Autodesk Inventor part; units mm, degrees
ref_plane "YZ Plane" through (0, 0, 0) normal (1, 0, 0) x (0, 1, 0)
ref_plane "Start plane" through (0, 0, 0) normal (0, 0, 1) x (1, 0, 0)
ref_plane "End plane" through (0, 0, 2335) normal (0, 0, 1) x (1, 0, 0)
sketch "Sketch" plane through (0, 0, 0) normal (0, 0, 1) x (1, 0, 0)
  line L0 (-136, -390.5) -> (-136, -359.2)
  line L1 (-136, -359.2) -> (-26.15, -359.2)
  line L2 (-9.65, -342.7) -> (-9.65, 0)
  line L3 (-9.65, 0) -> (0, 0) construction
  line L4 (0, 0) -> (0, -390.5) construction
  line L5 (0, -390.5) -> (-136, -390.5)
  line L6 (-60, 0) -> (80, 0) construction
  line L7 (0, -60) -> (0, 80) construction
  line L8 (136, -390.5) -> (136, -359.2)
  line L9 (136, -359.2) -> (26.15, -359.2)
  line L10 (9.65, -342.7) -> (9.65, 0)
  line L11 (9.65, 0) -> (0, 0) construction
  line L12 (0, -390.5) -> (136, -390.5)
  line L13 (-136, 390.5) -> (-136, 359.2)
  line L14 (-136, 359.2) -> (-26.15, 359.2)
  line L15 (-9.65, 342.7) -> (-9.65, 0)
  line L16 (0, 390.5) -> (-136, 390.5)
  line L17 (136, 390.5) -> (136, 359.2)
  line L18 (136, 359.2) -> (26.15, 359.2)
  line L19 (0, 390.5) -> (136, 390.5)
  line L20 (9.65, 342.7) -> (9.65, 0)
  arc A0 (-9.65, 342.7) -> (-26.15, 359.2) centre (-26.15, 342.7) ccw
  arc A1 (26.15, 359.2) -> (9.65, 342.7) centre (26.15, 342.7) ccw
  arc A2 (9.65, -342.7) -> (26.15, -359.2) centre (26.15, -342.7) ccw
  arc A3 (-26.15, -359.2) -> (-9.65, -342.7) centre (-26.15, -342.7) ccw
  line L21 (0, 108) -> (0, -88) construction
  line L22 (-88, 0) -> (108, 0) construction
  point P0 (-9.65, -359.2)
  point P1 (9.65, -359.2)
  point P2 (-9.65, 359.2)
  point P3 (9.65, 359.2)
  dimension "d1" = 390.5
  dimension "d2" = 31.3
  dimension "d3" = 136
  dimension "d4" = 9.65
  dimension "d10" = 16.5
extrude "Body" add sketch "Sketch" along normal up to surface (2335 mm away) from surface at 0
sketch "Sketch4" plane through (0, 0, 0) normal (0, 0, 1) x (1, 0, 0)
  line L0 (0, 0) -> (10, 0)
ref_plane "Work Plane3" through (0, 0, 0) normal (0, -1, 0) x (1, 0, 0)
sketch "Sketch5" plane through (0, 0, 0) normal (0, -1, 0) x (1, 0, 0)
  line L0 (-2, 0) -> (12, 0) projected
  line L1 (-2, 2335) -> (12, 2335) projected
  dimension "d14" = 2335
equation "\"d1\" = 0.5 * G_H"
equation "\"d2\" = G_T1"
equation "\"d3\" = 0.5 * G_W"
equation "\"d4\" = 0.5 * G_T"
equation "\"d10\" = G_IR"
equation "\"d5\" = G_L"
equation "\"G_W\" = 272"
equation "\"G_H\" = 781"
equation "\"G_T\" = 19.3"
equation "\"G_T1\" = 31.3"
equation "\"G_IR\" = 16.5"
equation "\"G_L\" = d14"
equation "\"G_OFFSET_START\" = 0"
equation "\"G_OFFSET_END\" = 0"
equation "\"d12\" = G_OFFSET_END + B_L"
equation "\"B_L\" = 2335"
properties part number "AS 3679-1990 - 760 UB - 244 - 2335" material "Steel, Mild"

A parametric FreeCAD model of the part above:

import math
import FreeCAD as App
import Part
import Sketcher
Q = App.Units.Quantity

doc = App.newDocument("Part")
body = doc.addObject("PartDesign::Body", "Body")

sketch1 = body.newObject("Sketcher::SketchObject", "Sketch")
sketch1.AttachmentSupport = (doc.getObject("XY_Plane"), [""])
sketch1.MapMode = "FlatFace"
sketch1.addGeometry([
    Part.LineSegment(App.Vector(-136, -359, 0), App.Vector(-136, -390, 0)),
    Part.LineSegment(App.Vector(-136, -390, 0), App.Vector(136, -390, 0)),
    Part.LineSegment(App.Vector(136, -390, 0), App.Vector(136, -359, 0)),
    Part.LineSegment(App.Vector(136, -359, 0), App.Vector(26, -359, 0)),
    Part.ArcOfCircle(Part.Circle(App.Vector(26, -343, 0), App.Vector(0, 0, 1), 16), math.radians(180), math.radians(270)),
    Part.LineSegment(App.Vector(10, -343, 0), App.Vector(10, 343, 0)),
    Part.ArcOfCircle(Part.Circle(App.Vector(26, 343, 0), App.Vector(0, 0, 1), 16), math.radians(90), math.radians(180)),
    Part.LineSegment(App.Vector(26, 359, 0), App.Vector(136, 359, 0)),
    Part.LineSegment(App.Vector(136, 359, 0), App.Vector(136, 390, 0)),
    Part.LineSegment(App.Vector(136, 390, 0), App.Vector(-136, 390, 0)),
    Part.LineSegment(App.Vector(-136, 390, 0), App.Vector(-136, 359, 0)),
    Part.LineSegment(App.Vector(-136, 359, 0), App.Vector(-26, 359, 0)),
    Part.ArcOfCircle(Part.Circle(App.Vector(-26, 343, 0), App.Vector(0, 0, 1), 16), math.radians(0), math.radians(90)),
    Part.LineSegment(App.Vector(-10, 343, 0), App.Vector(-10, -343, 0)),
    Part.ArcOfCircle(Part.Circle(App.Vector(-26, -343, 0), App.Vector(0, 0, 1), 16), math.radians(-90), math.radians(0)),
    Part.LineSegment(App.Vector(-26, -359, 0), App.Vector(-136, -359, 0)),
], False)
sketch1.addConstraint([
    Sketcher.Constraint("Coincident", 0, 2, 1, 1),
    Sketcher.Constraint("Coincident", 1, 2, 2, 1),
    Sketcher.Constraint("Coincident", 2, 2, 3, 1),
    Sketcher.Constraint("Tangent", 3, 2, 4, 2),
    Sketcher.Constraint("Tangent", 4, 1, 5, 1),
    Sketcher.Constraint("Tangent", 5, 2, 6, 2),
    Sketcher.Constraint("Tangent", 6, 1, 7, 1),
    Sketcher.Constraint("Coincident", 7, 2, 8, 1),
    Sketcher.Constraint("Coincident", 8, 2, 9, 1),
    Sketcher.Constraint("Coincident", 9, 2, 10, 1),
    Sketcher.Constraint("Coincident", 10, 2, 11, 1),
    Sketcher.Constraint("Tangent", 11, 2, 12, 2),
    Sketcher.Constraint("Tangent", 12, 1, 13, 1),
    Sketcher.Constraint("Tangent", 13, 2, 14, 2),
    Sketcher.Constraint("Tangent", 14, 1, 15, 1),
    Sketcher.Constraint("Coincident", 15, 2, 0, 1),
    Sketcher.Constraint("Vertical", 0),
    Sketcher.Constraint("Horizontal", 1),
    Sketcher.Constraint("Vertical", 2),
    Sketcher.Constraint("Horizontal", 3),
    Sketcher.Constraint("Vertical", 5),
    Sketcher.Constraint("Horizontal", 7),
    Sketcher.Constraint("Vertical", 8),
    Sketcher.Constraint("Horizontal", 9),
    Sketcher.Constraint("Vertical", 10),
    Sketcher.Constraint("Horizontal", 11),
    Sketcher.Constraint("Vertical", 13),
    Sketcher.Constraint("Horizontal", 15),
    Sketcher.Constraint("Equal", 4, 6),
    Sketcher.Constraint("Equal", 6, 12),
    Sketcher.Constraint("Equal", 12, 14),
    Sketcher.Constraint("Symmetric", 4, 3, 12, 3, -1, 1),
    Sketcher.Constraint("Symmetric", 0, 2, 8, 2, -1, 1),
    Sketcher.Constraint("Symmetric", 7, 2, 10, 2, -2),
    Sketcher.Constraint("Symmetric", 2, 2, 15, 2, -2),
    Sketcher.Constraint("Radius", 4, Q("16.5 mm")),
    Sketcher.Constraint("DistanceY", 0, 2, 0, 1, Q("31.3 mm")),
    Sketcher.Constraint("DistanceX", 0, 2, -1, 1, Q("136 mm")),
    Sketcher.Constraint("DistanceY", 0, 2, -1, 1, Q("390.5 mm")),
    Sketcher.Constraint("DistanceX", -1, 1, 4, 1, Q("9.65 mm")),
])
pad1 = body.newObject("PartDesign::Pad", "Pad")
pad1.Profile = sketch1
pad1.Length = 2335

doc.recompute()
